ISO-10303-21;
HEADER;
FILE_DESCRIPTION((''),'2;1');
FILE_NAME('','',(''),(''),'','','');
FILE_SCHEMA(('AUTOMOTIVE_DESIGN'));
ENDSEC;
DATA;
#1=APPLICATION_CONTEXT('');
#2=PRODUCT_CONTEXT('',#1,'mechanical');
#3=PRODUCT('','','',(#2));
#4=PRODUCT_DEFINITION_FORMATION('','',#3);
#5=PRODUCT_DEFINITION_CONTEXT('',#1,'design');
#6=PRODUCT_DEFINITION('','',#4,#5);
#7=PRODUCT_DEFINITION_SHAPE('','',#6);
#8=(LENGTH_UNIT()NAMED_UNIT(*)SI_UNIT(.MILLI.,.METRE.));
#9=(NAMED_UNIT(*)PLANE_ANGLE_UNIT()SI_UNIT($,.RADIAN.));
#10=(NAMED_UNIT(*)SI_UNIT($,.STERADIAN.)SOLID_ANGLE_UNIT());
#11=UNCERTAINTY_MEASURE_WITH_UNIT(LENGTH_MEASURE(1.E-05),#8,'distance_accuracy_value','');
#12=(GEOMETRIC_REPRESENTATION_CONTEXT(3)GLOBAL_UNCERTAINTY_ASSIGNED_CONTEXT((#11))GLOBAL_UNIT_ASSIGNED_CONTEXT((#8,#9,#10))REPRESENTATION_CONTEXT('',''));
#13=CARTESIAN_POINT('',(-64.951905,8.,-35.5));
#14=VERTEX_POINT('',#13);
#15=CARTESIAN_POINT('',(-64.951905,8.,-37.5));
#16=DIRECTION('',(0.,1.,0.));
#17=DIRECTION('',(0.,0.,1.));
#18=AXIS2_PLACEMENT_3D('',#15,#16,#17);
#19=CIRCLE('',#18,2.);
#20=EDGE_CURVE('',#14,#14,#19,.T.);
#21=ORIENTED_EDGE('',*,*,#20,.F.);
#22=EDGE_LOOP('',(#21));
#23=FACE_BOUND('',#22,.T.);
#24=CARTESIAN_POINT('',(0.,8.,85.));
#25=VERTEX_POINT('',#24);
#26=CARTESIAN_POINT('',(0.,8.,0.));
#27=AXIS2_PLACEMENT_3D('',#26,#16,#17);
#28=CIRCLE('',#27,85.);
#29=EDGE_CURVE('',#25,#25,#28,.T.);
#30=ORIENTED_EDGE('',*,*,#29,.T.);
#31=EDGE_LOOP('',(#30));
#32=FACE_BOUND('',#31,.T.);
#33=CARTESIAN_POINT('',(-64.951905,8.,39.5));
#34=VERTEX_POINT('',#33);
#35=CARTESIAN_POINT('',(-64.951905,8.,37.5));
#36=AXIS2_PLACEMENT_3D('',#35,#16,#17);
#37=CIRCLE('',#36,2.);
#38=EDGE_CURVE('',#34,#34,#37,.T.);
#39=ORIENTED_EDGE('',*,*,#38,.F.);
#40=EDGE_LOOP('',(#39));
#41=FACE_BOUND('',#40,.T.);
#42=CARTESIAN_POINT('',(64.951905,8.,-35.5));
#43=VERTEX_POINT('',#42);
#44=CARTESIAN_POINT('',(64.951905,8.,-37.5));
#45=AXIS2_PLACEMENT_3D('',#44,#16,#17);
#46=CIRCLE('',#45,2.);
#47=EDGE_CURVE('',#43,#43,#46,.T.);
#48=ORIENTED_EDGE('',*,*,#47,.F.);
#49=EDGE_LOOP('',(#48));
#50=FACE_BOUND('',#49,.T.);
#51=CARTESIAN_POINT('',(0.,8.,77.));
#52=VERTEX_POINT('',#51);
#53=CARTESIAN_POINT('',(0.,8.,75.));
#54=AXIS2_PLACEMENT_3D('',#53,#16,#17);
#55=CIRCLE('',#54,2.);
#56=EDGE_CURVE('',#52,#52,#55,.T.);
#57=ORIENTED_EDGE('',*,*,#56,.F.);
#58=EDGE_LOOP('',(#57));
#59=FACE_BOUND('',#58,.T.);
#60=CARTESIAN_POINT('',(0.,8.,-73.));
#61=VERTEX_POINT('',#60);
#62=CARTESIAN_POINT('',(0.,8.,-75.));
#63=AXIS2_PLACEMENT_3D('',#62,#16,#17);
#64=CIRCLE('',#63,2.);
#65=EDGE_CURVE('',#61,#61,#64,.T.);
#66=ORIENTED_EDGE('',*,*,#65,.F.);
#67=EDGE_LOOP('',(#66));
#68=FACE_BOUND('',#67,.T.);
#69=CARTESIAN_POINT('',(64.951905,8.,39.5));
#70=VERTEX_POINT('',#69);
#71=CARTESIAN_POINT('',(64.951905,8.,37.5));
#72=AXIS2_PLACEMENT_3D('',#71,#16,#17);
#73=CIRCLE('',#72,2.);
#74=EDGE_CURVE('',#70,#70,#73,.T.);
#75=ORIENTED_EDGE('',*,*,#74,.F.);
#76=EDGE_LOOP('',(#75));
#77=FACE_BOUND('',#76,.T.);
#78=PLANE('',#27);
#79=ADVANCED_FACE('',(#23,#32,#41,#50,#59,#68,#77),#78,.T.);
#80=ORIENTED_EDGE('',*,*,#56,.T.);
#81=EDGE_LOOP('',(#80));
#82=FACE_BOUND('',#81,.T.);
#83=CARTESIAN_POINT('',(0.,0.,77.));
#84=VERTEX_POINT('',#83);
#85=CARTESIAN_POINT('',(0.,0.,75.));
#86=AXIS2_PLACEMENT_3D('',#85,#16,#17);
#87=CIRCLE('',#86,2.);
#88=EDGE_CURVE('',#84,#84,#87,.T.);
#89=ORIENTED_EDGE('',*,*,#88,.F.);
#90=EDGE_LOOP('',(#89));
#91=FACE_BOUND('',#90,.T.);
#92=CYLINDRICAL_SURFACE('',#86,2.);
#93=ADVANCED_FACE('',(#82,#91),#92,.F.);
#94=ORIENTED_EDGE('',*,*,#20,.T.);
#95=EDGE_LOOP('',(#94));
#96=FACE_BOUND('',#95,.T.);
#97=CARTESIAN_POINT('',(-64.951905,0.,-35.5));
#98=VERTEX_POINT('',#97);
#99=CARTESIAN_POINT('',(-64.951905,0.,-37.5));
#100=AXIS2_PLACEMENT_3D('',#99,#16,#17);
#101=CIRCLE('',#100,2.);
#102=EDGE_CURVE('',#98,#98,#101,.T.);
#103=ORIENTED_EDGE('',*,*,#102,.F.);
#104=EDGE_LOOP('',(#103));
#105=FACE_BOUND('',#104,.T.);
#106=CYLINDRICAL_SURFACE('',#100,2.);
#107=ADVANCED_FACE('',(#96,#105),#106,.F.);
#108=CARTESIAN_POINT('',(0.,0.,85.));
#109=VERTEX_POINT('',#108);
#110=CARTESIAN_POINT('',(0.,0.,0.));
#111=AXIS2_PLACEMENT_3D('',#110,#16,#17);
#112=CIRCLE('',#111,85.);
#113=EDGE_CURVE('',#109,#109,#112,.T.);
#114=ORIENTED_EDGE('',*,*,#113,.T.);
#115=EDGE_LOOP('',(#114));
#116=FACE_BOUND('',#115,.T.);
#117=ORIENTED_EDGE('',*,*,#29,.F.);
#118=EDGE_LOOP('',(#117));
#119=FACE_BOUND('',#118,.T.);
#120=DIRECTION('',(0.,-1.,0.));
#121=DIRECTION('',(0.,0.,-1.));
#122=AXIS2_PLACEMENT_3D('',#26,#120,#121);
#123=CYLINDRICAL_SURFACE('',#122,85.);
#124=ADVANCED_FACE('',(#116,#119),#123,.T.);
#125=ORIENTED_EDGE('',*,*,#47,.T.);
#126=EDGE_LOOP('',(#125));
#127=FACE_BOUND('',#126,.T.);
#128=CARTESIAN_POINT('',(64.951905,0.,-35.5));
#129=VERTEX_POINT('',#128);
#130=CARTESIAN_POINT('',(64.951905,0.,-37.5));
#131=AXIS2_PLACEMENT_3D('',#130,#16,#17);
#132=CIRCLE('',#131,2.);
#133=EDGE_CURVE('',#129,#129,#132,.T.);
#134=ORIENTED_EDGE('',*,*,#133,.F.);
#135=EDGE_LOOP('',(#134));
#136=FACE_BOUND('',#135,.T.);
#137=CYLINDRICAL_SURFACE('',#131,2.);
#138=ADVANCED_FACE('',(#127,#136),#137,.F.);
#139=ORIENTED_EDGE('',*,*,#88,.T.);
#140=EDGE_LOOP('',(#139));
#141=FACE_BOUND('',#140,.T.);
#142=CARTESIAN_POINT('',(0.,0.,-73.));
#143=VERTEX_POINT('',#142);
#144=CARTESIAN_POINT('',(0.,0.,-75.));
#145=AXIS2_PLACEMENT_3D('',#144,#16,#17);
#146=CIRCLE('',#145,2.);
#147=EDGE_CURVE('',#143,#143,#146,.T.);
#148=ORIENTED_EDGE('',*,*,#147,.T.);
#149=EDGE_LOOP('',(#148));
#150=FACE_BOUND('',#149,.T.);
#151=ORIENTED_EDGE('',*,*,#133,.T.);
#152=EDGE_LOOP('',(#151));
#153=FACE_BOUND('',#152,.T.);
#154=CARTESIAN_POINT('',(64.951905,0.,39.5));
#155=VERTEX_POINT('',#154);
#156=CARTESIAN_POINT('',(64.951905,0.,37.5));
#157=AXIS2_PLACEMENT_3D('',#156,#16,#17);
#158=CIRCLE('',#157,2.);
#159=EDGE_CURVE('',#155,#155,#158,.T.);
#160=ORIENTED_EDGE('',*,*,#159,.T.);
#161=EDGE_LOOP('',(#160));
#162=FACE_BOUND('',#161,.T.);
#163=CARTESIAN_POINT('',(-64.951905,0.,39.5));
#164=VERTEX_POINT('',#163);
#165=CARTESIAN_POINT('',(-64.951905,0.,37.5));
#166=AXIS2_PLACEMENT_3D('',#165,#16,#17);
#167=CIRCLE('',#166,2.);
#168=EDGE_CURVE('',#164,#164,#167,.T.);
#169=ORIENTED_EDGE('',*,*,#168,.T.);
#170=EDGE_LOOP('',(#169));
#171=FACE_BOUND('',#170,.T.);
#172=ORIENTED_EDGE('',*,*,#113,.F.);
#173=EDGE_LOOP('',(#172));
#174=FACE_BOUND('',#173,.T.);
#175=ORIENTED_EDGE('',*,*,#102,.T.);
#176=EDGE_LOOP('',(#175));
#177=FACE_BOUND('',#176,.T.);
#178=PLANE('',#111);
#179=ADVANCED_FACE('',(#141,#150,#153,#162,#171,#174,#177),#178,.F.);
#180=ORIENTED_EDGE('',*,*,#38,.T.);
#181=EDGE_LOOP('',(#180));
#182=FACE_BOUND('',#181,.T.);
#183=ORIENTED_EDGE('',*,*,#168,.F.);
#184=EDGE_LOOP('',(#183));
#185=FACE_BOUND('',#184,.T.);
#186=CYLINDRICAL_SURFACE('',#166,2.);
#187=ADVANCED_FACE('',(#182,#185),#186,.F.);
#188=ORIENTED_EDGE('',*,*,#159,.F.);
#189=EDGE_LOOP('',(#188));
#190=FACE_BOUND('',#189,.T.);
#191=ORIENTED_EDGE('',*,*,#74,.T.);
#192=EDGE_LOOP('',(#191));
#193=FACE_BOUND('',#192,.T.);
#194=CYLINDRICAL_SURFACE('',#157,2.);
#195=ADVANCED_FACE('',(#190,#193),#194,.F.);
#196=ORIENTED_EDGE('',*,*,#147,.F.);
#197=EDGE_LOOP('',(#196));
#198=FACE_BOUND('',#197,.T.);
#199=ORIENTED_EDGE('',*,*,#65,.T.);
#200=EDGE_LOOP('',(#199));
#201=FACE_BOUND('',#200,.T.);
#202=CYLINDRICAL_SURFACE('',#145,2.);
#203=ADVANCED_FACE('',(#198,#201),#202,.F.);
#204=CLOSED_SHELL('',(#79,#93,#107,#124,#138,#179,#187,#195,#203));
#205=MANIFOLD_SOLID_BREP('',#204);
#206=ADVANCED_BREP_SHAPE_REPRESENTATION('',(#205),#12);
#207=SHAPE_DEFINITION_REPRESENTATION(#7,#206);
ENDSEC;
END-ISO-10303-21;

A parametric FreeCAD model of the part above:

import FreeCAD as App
import Part
import Sketcher

V = App.Vector

doc = App.newDocument("Part")
body = doc.addObject("PartDesign::Body", "Body")

# Sketch on XZ plane
sketch1 = body.newObject("Sketcher::SketchObject", "Sketch")
sketch1.AttachmentSupport = (doc.getObject("XZ_Plane"), [""])
sketch1.MapMode = "FlatFace"
sketch1.addGeometry(Part.Circle(V(0, 0, 0), V(0, 0, 1), 85), False)
sketch1.addConstraint(Sketcher.Constraint("Coincident", 0, 3, -1, 1))
sketch1.addConstraint(Sketcher.Constraint("Diameter", 0, 170.0))
pad1 = body.newObject("PartDesign::Pad", "Pad")
pad1.Profile = sketch1
pad1.Length = 8
pad1.Reversed = True

# Sketch on XZ plane
sketch2 = body.newObject("Sketcher::SketchObject", "Sketch001")
sketch2.AttachmentSupport = (doc.getObject("XZ_Plane"), [""])
sketch2.MapMode = "FlatFace"
sketch2.AttachmentOffset = App.Placement(V(0, 0, -8), App.Rotation())
sketch2.addGeometry(Part.Circle(V(0, 75, 0), V(0, 0, 1), 2), False)
sketch2.addGeometry(Part.Circle(V(-64.951905, 37.5, 0), V(0, 0, 1), 2), False)
sketch2.addGeometry(Part.Circle(V(-64.951905, -37.5, 0), V(0, 0, 1), 2), False)
sketch2.addGeometry(Part.Circle(V(0, -75, 0), V(0, 0, 1), 2), False)
sketch2.addGeometry(Part.Circle(V(64.951905, -37.5, 0), V(0, 0, 1), 2), False)
sketch2.addGeometry(Part.Circle(V(64.951905, 37.5, 0), V(0, 0, 1), 2), False)
sketch2.addConstraint(Sketcher.Constraint("Equal", 0, 1))
sketch2.addConstraint(Sketcher.Constraint("Equal", 1, 2))
sketch2.addConstraint(Sketcher.Constraint("Equal", 2, 3))
sketch2.addConstraint(Sketcher.Constraint("Equal", 3, 4))
sketch2.addConstraint(Sketcher.Constraint("Equal", 4, 5))
sketch2.addConstraint(Sketcher.Constraint("Symmetric", 0, 3, 3, 3, -1, 1))
sketch2.addConstraint(Sketcher.Constraint("Symmetric", 1, 3, 4, 3, -1, 1))
sketch2.addConstraint(Sketcher.Constraint("Symmetric", 2, 3, 5, 3, -1, 1))
sketch2.addConstraint(Sketcher.Constraint("Symmetric", 2, 3, 4, 3, -2))
sketch2.addConstraint(Sketcher.Constraint("PointOnObject", 0, 3, -2))
sketch2.addConstraint(Sketcher.Constraint("Diameter", 0, 4.0))
sketch2.addConstraint(Sketcher.Constraint("DistanceY", -1, 1, 0, 3, 75.0))
sketch2.addConstraint(Sketcher.Constraint("DistanceY", 2, 3, 1, 3, 75.0))
sketch2.addConstraint(Sketcher.Constraint("DistanceX", 2, 3, 4, 3, 129.903811))
pocket1 = body.newObject("PartDesign::Pocket", "Pocket")
pocket1.Profile = sketch2
pocket1.Type = "ThroughAll"
pocket1.Reversed = True

doc.recompute()
